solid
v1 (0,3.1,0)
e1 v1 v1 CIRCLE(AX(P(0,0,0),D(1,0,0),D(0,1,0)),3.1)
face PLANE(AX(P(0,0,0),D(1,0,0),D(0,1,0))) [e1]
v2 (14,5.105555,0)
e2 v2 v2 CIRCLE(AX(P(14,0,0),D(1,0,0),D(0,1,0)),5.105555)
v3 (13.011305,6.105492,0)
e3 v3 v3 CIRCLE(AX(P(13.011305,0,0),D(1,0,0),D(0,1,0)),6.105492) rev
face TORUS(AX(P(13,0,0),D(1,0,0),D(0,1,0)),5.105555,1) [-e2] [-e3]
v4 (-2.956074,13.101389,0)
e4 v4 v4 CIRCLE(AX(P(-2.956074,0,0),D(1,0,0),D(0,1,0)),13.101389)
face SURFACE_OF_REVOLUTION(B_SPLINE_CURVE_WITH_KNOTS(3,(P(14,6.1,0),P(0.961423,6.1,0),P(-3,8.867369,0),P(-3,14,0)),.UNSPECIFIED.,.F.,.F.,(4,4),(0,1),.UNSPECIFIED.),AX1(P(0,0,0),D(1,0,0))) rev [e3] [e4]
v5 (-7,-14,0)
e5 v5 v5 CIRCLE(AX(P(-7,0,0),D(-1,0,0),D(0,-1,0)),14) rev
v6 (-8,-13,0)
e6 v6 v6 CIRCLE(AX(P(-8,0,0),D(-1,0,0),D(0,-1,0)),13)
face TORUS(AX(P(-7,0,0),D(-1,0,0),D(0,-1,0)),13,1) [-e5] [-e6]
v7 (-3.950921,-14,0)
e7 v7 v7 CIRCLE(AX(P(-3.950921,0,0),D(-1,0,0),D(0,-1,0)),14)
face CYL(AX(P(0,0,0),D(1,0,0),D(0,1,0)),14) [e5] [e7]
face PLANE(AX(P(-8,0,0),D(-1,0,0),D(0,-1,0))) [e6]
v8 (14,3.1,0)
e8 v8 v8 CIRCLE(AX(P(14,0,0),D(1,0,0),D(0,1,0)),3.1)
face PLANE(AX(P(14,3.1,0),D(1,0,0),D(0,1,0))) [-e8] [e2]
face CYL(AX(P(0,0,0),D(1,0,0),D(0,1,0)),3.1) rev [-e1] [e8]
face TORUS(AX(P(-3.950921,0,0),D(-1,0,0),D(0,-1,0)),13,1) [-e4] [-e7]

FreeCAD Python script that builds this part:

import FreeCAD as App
import Part
import Sketcher
from FreeCAD import Vector


def edges_at(feature, points):
    """Names of the edges that pass closest to the given points."""
    edges = feature.Shape.Edges
    near = lambda p: min(range(len(edges)), key=lambda i: edges[i].distToShape(Part.Vertex(*p))[0])
    return sorted({f"Edge{near(p) + 1}" for p in points})

doc = App.newDocument("Part")
body = doc.addObject("PartDesign::Body", "Body")

sketch1 = doc.addObject("Sketcher::SketchObject", "Sketch")
body.addObject(sketch1)
sketch1.AttachmentSupport = (doc.XY_Plane, [""])
sketch1.MapMode = "FlatFace"
sketch1.addGeometry([
    Part.LineSegment(Vector(0, 0, 0), Vector(0, 3.1, 0)),
    Part.LineSegment(Vector(0, 3.1, 0), Vector(14, 3.1, 0)),
    Part.LineSegment(Vector(14, 3.1, 0), Vector(14, 6.1, 0)),
    Part.BSplineCurve([Vector(-3, 14, 0), Vector(-3, 8.867369, 0), Vector(0.961423, 6.1, 0), Vector(14, 6.1, 0)], [4, 4], [0, 1], False, 3, [1, 1, 1, 1], False),
    Part.LineSegment(Vector(-3, 14, 0), Vector(-8, 14, 0)),
    Part.LineSegment(Vector(-8, 14, 0), Vector(-8, 0, 0)),
    Part.LineSegment(Vector(-8, 0, 0), Vector(0, 0, 0)),
], False)
sketch1.addConstraint([
    Sketcher.Constraint("Block", 3),
    Sketcher.Constraint("Coincident", 0, 2, 1, 1),
    Sketcher.Constraint("Coincident", 1, 2, 2, 1),
    Sketcher.Constraint("Coincident", 2, 2, 3, 2),
    Sketcher.Constraint("Coincident", 3, 1, 4, 1),
    Sketcher.Constraint("Coincident", 4, 2, 5, 1),
    Sketcher.Constraint("Coincident", 5, 2, 6, 1),
    Sketcher.Constraint("Coincident", 6, 2, 0, 1),
    Sketcher.Constraint("Vertical", 0),
    Sketcher.Constraint("Horizontal", 1),
    Sketcher.Constraint("Vertical", 2),
    Sketcher.Constraint("Horizontal", 4),
    Sketcher.Constraint("Vertical", 5),
    Sketcher.Constraint("Horizontal", 6),
    Sketcher.Constraint("Coincident", 6, 2, -1, 1),
    Sketcher.Constraint("DistanceX", 4, 2, 4, 1, 5.0),
    Sketcher.Constraint("DistanceY", 2, 1, 2, 2, 3.0),
])
revolution = doc.addObject("PartDesign::Revolution", "Revolution")
body.addObject(revolution)
revolution.Profile = sketch1
revolution.ReferenceAxis = (sketch1, ["H_Axis"])
revolution.Angle = 360
doc.recompute()

fillet = doc.addObject("PartDesign::Fillet", "Fillet")
body.addObject(fillet)
fillet.Base = (revolution, edges_at(revolution, [(14, -6.1, 0), (-3, -14, 0), (-8, -14, 0)]))
fillet.Radius = 1

doc.recompute()
